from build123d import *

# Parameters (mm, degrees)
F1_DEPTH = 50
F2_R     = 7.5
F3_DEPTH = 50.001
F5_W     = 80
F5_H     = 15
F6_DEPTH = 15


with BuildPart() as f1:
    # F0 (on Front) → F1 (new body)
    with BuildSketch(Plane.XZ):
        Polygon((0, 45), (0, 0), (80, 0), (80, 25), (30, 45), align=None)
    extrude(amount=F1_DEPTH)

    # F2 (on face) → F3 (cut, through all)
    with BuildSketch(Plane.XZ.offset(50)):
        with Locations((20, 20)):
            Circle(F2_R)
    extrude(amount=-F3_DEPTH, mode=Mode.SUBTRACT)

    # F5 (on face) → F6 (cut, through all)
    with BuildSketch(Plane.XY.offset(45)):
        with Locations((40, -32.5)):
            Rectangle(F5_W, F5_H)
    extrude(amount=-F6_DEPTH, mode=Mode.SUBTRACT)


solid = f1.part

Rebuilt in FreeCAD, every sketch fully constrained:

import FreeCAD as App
import Part
import Sketcher
from FreeCAD import Vector

doc = App.newDocument("Part")
body = doc.addObject("PartDesign::Body", "Body")

sketch1 = body.newObject("Sketcher::SketchObject", "Sketch")
sketch1.AttachmentSupport = (doc.getObject("XZ_Plane"), [""])
sketch1.MapMode = "FlatFace"
sketch1.addGeometry(Part.LineSegment(Vector(0, 45, 0), Vector(0, 0, 0)), False)
sketch1.addGeometry(Part.LineSegment(Vector(0, 0, 0), Vector(80, 0, 0)), False)
sketch1.addGeometry(Part.LineSegment(Vector(80, 0, 0), Vector(80, 25, 0)), False)
sketch1.addGeometry(Part.LineSegment(Vector(80, 25, 0), Vector(30, 45, 0)), False)
sketch1.addGeometry(Part.LineSegment(Vector(30, 45, 0), Vector(0, 45, 0)), False)
sketch1.addConstraint(Sketcher.Constraint("Coincident", 0, 2, 1, 1))
sketch1.addConstraint(Sketcher.Constraint("Coincident", 1, 2, 2, 1))
sketch1.addConstraint(Sketcher.Constraint("Coincident", 2, 2, 3, 1))
sketch1.addConstraint(Sketcher.Constraint("Coincident", 3, 2, 4, 1))
sketch1.addConstraint(Sketcher.Constraint("Coincident", 4, 2, 0, 1))
sketch1.addConstraint(Sketcher.Constraint("Vertical", 0))
sketch1.addConstraint(Sketcher.Constraint("Horizontal", 1))
sketch1.addConstraint(Sketcher.Constraint("Vertical", 2))
sketch1.addConstraint(Sketcher.Constraint("Horizontal", 4))
sketch1.addConstraint(Sketcher.Constraint("Coincident", 0, 2, -1, 1))
sketch1.addConstraint(Sketcher.Constraint("DistanceX", 1, 1, 1, 2, 80.0))
sketch1.addConstraint(Sketcher.Constraint("DistanceX", 4, 2, 4, 1, 30.0))
sketch1.addConstraint(Sketcher.Constraint("DistanceY", 0, 2, 0, 1, 45.0))
sketch1.addConstraint(Sketcher.Constraint("DistanceY", 2, 1, 2, 2, 25.0))
pad1 = body.newObject("PartDesign::Pad", "Pad")
pad1.Profile = sketch1
pad1.Length = 50

sketch2 = body.newObject("Sketcher::SketchObject", "Sketch001")
sketch2.AttachmentSupport = (doc.getObject("XZ_Plane"), [""])
sketch2.MapMode = "FlatFace"
sketch2.AttachmentOffset = App.Placement(Vector(0, 0, 50), App.Rotation())
sketch2.addGeometry(Part.Circle(Vector(20, 20, 0), Vector(0, 0, 1), 7.5), False)
sketch2.addConstraint(Sketcher.Constraint("Diameter", 0, 15.0))
sketch2.addConstraint(Sketcher.Constraint("DistanceX", -1, 1, 0, 3, 20.0))
sketch2.addConstraint(Sketcher.Constraint("DistanceY", -1, 1, 0, 3, 20.0))
pocket1 = body.newObject("PartDesign::Pocket", "Pocket")
pocket1.Profile = sketch2
pocket1.Type = "ThroughAll"

sketch3 = body.newObject("Sketcher::SketchObject", "Sketch002")
sketch3.AttachmentSupport = (doc.getObject("XY_Plane"), [""])
sketch3.MapMode = "FlatFace"
sketch3.AttachmentOffset = App.Placement(Vector(0, 0, 45), App.Rotation())
sketch3.addGeometry(Part.LineSegment(Vector(0, -25, 0), Vector(0, -40, 0)), False)
sketch3.addGeometry(Part.LineSegment(Vector(0, -40, 0), Vector(80, -40, 0)), False)
sketch3.addGeometry(Part.LineSegment(Vector(80, -40, 0), Vector(80, -25, 0)), False)
sketch3.addGeometry(Part.LineSegment(Vector(80, -25, 0), Vector(0, -25, 0)), False)
sketch3.addConstraint(Sketcher.Constraint("Coincident", 0, 2, 1, 1))
sketch3.addConstraint(Sketcher.Constraint("Coincident", 1, 2, 2, 1))
sketch3.addConstraint(Sketcher.Constraint("Coincident", 2, 2, 3, 1))
sketch3.addConstraint(Sketcher.Constraint("Coincident", 3, 2, 0, 1))
sketch3.addConstraint(Sketcher.Constraint("Vertical", 0))
sketch3.addConstraint(Sketcher.Constraint("Horizontal", 1))
sketch3.addConstraint(Sketcher.Constraint("Vertical", 2))
sketch3.addConstraint(Sketcher.Constraint("Horizontal", 3))
sketch3.addConstraint(Sketcher.Constraint("PointOnObject", 0, 2, -2))
sketch3.addConstraint(Sketcher.Constraint("DistanceX", 1, 1, 1, 2, 80.0))
sketch3.addConstraint(Sketcher.Constraint("DistanceY", 0, 2, 0, 1, 15.0))
sketch3.addConstraint(Sketcher.Constraint("DistanceY", 0, 2, -1, 1, 40.0))
pocket2 = body.newObject("PartDesign::Pocket", "Pocket001")
pocket2.Profile = sketch3
pocket2.Length = 15

doc.recompute()
